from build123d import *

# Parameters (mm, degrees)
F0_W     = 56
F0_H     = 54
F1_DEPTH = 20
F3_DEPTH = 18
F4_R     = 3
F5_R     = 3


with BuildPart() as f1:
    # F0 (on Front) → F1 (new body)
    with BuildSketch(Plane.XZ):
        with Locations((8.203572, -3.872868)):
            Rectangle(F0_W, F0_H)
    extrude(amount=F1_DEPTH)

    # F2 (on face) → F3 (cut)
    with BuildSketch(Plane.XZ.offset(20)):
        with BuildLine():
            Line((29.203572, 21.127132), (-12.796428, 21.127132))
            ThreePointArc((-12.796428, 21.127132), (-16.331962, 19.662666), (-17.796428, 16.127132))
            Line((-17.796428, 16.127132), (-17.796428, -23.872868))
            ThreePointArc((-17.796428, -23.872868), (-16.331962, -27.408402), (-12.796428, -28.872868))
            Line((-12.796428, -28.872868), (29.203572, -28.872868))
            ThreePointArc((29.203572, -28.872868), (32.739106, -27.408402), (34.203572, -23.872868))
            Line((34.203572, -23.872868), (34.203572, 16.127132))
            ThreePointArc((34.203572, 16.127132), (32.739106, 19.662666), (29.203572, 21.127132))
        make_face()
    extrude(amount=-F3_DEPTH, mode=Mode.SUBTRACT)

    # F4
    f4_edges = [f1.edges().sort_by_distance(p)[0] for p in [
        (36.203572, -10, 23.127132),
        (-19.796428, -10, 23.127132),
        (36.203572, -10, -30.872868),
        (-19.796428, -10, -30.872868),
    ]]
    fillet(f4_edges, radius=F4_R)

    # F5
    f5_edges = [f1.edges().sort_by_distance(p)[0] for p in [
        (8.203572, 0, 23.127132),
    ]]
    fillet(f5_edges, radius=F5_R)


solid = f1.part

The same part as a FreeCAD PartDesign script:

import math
import FreeCAD as App
import Part
import Sketcher


def edges_at(feature, points):
    """Names of the edges that pass closest to the given points."""
    edges = feature.Shape.Edges
    near = lambda p: min(range(len(edges)), key=lambda i: edges[i].distToShape(Part.Vertex(*p))[0])
    return sorted({f"Edge{near(p) + 1}" for p in points})


def add_polygon(sketch, points):
    """Adds a closed chain of lines whose ends are joined by coincident constraints."""
    first, n = sketch.GeometryCount, len(points)
    for a, b in zip(points, points[1:] + points[:1]):
        sketch.addGeometry(Part.LineSegment(App.Vector(*a, 0), App.Vector(*b, 0)), False)
    for i in range(n):
        sketch.addConstraint(Sketcher.Constraint("Coincident", first + i, 2, first + (i + 1) % n, 1))

doc = App.newDocument("Part")
body = doc.addObject("PartDesign::Body", "Body")

# Sketch on XZ plane
sketch1 = doc.addObject("Sketcher::SketchObject", "Sketch")
body.addObject(sketch1)
sketch1.AttachmentSupport = (doc.XZ_Plane, [""])
sketch1.MapMode = "FlatFace"
add_polygon(sketch1, [(-20, 23), (-20, -31), (36, -31), (36, 23)])  # lines 0-3
sketch1.addConstraint([
    Sketcher.Constraint("Vertical", 0),
    Sketcher.Constraint("Horizontal", 1),
    Sketcher.Constraint("Vertical", 2),
    Sketcher.Constraint("Horizontal", 3),
    Sketcher.Constraint("DistanceX", 1, 1, 1, 2, 56.0),
    Sketcher.Constraint("DistanceY", 0, 2, 0, 1, 54.0),
    Sketcher.Constraint("DistanceY", 0, 2, -1, 1, 30.872868),
    Sketcher.Constraint("DistanceX", 0, 2, -1, 1, 19.796428),
])
pad1 = doc.addObject("PartDesign::Pad", "Pad")
body.addObject(pad1)
pad1.Profile = sketch1
pad1.Length = 20

# Sketch on XZ plane
sketch2 = doc.addObject("Sketcher::SketchObject", "Sketch001")
body.addObject(sketch2)
sketch2.AttachmentSupport = (doc.XZ_Plane, [""])
sketch2.MapMode = "FlatFace"
sketch2.AttachmentOffset = App.Placement(App.Vector(0, 0, 20), App.Rotation())
sketch2.addGeometry([
    Part.LineSegment(App.Vector(29.2, 21.1, 0), App.Vector(-12.8, 21.1, 0)),  # 0
    Part.ArcOfCircle(Part.Circle(App.Vector(-12.8, 16.1, 0), App.Vector(0, 0, 1), 5), math.radians(90), math.radians(180)),  # 1
    Part.LineSegment(App.Vector(-17.8, 16.1, 0), App.Vector(-17.8, -23.9, 0)),  # 2
    Part.ArcOfCircle(Part.Circle(App.Vector(-12.8, -23.9, 0), App.Vector(0, 0, 1), 5), math.radians(180), math.radians(270)),  # 3
    Part.LineSegment(App.Vector(-12.8, -28.9, 0), App.Vector(29.2, -28.9, 0)),  # 4
    Part.ArcOfCircle(Part.Circle(App.Vector(29.2, -23.9, 0), App.Vector(0, 0, 1), 5), math.radians(-90), math.radians(0)),  # 5
    Part.LineSegment(App.Vector(34.2, -23.9, 0), App.Vector(34.2, 16.1, 0)),  # 6
    Part.ArcOfCircle(Part.Circle(App.Vector(29.2, 16.1, 0), App.Vector(0, 0, 1), 5), math.radians(0), math.radians(90)),  # 7
], False)
sketch2.addConstraint([
    Sketcher.Constraint("Tangent", 0, 2, 1, 1),
    Sketcher.Constraint("Tangent", 1, 2, 2, 1),
    Sketcher.Constraint("Tangent", 2, 2, 3, 1),
    Sketcher.Constraint("Tangent", 3, 2, 4, 1),
    Sketcher.Constraint("Tangent", 4, 2, 5, 1),
    Sketcher.Constraint("Tangent", 5, 2, 6, 1),
    Sketcher.Constraint("Tangent", 6, 2, 7, 1),
    Sketcher.Constraint("Tangent", 7, 2, 0, 1),
    Sketcher.Constraint("Horizontal", 0),
    Sketcher.Constraint("Vertical", 2),
    Sketcher.Constraint("Horizontal", 4),
    Sketcher.Constraint("Vertical", 6),
    Sketcher.Constraint("Equal", 1, 3),
    Sketcher.Constraint("Equal", 3, 5),
    Sketcher.Constraint("Equal", 5, 7),
    Sketcher.Constraint("Radius", 1, 5.0),
    Sketcher.Constraint("DistanceX", 0, 2, 0, 1, 42.0),
    Sketcher.Constraint("DistanceY", 2, 2, 2, 1, 40.0),
    Sketcher.Constraint("DistanceX", 1, 3, -1, 1, 12.796428),
    Sketcher.Constraint("DistanceY", 3, 3, -1, 1, 23.872868),
])
pocket1 = doc.addObject("PartDesign::Pocket", "Pocket")
body.addObject(pocket1)
pocket1.Profile = sketch2
pocket1.Length = 18
doc.recompute()

fillet = doc.addObject("PartDesign::Fillet", "Fillet")
body.addObject(fillet)
fillet.Base = (pocket1, edges_at(pocket1, [
    (36.204, -10, 23.127),
    (-19.796, -10, 23.127),
    (36.204, -10, -30.873),
    (-19.796, -10, -30.873),
]))
fillet.Radius = 3
doc.recompute()

fillet2 = doc.addObject("PartDesign::Fillet", "Fillet001")
body.addObject(fillet2)
fillet2.Base = (fillet, edges_at(fillet, [(8.204, 0, 23.127)]))
fillet2.Radius = 3

doc.recompute()
